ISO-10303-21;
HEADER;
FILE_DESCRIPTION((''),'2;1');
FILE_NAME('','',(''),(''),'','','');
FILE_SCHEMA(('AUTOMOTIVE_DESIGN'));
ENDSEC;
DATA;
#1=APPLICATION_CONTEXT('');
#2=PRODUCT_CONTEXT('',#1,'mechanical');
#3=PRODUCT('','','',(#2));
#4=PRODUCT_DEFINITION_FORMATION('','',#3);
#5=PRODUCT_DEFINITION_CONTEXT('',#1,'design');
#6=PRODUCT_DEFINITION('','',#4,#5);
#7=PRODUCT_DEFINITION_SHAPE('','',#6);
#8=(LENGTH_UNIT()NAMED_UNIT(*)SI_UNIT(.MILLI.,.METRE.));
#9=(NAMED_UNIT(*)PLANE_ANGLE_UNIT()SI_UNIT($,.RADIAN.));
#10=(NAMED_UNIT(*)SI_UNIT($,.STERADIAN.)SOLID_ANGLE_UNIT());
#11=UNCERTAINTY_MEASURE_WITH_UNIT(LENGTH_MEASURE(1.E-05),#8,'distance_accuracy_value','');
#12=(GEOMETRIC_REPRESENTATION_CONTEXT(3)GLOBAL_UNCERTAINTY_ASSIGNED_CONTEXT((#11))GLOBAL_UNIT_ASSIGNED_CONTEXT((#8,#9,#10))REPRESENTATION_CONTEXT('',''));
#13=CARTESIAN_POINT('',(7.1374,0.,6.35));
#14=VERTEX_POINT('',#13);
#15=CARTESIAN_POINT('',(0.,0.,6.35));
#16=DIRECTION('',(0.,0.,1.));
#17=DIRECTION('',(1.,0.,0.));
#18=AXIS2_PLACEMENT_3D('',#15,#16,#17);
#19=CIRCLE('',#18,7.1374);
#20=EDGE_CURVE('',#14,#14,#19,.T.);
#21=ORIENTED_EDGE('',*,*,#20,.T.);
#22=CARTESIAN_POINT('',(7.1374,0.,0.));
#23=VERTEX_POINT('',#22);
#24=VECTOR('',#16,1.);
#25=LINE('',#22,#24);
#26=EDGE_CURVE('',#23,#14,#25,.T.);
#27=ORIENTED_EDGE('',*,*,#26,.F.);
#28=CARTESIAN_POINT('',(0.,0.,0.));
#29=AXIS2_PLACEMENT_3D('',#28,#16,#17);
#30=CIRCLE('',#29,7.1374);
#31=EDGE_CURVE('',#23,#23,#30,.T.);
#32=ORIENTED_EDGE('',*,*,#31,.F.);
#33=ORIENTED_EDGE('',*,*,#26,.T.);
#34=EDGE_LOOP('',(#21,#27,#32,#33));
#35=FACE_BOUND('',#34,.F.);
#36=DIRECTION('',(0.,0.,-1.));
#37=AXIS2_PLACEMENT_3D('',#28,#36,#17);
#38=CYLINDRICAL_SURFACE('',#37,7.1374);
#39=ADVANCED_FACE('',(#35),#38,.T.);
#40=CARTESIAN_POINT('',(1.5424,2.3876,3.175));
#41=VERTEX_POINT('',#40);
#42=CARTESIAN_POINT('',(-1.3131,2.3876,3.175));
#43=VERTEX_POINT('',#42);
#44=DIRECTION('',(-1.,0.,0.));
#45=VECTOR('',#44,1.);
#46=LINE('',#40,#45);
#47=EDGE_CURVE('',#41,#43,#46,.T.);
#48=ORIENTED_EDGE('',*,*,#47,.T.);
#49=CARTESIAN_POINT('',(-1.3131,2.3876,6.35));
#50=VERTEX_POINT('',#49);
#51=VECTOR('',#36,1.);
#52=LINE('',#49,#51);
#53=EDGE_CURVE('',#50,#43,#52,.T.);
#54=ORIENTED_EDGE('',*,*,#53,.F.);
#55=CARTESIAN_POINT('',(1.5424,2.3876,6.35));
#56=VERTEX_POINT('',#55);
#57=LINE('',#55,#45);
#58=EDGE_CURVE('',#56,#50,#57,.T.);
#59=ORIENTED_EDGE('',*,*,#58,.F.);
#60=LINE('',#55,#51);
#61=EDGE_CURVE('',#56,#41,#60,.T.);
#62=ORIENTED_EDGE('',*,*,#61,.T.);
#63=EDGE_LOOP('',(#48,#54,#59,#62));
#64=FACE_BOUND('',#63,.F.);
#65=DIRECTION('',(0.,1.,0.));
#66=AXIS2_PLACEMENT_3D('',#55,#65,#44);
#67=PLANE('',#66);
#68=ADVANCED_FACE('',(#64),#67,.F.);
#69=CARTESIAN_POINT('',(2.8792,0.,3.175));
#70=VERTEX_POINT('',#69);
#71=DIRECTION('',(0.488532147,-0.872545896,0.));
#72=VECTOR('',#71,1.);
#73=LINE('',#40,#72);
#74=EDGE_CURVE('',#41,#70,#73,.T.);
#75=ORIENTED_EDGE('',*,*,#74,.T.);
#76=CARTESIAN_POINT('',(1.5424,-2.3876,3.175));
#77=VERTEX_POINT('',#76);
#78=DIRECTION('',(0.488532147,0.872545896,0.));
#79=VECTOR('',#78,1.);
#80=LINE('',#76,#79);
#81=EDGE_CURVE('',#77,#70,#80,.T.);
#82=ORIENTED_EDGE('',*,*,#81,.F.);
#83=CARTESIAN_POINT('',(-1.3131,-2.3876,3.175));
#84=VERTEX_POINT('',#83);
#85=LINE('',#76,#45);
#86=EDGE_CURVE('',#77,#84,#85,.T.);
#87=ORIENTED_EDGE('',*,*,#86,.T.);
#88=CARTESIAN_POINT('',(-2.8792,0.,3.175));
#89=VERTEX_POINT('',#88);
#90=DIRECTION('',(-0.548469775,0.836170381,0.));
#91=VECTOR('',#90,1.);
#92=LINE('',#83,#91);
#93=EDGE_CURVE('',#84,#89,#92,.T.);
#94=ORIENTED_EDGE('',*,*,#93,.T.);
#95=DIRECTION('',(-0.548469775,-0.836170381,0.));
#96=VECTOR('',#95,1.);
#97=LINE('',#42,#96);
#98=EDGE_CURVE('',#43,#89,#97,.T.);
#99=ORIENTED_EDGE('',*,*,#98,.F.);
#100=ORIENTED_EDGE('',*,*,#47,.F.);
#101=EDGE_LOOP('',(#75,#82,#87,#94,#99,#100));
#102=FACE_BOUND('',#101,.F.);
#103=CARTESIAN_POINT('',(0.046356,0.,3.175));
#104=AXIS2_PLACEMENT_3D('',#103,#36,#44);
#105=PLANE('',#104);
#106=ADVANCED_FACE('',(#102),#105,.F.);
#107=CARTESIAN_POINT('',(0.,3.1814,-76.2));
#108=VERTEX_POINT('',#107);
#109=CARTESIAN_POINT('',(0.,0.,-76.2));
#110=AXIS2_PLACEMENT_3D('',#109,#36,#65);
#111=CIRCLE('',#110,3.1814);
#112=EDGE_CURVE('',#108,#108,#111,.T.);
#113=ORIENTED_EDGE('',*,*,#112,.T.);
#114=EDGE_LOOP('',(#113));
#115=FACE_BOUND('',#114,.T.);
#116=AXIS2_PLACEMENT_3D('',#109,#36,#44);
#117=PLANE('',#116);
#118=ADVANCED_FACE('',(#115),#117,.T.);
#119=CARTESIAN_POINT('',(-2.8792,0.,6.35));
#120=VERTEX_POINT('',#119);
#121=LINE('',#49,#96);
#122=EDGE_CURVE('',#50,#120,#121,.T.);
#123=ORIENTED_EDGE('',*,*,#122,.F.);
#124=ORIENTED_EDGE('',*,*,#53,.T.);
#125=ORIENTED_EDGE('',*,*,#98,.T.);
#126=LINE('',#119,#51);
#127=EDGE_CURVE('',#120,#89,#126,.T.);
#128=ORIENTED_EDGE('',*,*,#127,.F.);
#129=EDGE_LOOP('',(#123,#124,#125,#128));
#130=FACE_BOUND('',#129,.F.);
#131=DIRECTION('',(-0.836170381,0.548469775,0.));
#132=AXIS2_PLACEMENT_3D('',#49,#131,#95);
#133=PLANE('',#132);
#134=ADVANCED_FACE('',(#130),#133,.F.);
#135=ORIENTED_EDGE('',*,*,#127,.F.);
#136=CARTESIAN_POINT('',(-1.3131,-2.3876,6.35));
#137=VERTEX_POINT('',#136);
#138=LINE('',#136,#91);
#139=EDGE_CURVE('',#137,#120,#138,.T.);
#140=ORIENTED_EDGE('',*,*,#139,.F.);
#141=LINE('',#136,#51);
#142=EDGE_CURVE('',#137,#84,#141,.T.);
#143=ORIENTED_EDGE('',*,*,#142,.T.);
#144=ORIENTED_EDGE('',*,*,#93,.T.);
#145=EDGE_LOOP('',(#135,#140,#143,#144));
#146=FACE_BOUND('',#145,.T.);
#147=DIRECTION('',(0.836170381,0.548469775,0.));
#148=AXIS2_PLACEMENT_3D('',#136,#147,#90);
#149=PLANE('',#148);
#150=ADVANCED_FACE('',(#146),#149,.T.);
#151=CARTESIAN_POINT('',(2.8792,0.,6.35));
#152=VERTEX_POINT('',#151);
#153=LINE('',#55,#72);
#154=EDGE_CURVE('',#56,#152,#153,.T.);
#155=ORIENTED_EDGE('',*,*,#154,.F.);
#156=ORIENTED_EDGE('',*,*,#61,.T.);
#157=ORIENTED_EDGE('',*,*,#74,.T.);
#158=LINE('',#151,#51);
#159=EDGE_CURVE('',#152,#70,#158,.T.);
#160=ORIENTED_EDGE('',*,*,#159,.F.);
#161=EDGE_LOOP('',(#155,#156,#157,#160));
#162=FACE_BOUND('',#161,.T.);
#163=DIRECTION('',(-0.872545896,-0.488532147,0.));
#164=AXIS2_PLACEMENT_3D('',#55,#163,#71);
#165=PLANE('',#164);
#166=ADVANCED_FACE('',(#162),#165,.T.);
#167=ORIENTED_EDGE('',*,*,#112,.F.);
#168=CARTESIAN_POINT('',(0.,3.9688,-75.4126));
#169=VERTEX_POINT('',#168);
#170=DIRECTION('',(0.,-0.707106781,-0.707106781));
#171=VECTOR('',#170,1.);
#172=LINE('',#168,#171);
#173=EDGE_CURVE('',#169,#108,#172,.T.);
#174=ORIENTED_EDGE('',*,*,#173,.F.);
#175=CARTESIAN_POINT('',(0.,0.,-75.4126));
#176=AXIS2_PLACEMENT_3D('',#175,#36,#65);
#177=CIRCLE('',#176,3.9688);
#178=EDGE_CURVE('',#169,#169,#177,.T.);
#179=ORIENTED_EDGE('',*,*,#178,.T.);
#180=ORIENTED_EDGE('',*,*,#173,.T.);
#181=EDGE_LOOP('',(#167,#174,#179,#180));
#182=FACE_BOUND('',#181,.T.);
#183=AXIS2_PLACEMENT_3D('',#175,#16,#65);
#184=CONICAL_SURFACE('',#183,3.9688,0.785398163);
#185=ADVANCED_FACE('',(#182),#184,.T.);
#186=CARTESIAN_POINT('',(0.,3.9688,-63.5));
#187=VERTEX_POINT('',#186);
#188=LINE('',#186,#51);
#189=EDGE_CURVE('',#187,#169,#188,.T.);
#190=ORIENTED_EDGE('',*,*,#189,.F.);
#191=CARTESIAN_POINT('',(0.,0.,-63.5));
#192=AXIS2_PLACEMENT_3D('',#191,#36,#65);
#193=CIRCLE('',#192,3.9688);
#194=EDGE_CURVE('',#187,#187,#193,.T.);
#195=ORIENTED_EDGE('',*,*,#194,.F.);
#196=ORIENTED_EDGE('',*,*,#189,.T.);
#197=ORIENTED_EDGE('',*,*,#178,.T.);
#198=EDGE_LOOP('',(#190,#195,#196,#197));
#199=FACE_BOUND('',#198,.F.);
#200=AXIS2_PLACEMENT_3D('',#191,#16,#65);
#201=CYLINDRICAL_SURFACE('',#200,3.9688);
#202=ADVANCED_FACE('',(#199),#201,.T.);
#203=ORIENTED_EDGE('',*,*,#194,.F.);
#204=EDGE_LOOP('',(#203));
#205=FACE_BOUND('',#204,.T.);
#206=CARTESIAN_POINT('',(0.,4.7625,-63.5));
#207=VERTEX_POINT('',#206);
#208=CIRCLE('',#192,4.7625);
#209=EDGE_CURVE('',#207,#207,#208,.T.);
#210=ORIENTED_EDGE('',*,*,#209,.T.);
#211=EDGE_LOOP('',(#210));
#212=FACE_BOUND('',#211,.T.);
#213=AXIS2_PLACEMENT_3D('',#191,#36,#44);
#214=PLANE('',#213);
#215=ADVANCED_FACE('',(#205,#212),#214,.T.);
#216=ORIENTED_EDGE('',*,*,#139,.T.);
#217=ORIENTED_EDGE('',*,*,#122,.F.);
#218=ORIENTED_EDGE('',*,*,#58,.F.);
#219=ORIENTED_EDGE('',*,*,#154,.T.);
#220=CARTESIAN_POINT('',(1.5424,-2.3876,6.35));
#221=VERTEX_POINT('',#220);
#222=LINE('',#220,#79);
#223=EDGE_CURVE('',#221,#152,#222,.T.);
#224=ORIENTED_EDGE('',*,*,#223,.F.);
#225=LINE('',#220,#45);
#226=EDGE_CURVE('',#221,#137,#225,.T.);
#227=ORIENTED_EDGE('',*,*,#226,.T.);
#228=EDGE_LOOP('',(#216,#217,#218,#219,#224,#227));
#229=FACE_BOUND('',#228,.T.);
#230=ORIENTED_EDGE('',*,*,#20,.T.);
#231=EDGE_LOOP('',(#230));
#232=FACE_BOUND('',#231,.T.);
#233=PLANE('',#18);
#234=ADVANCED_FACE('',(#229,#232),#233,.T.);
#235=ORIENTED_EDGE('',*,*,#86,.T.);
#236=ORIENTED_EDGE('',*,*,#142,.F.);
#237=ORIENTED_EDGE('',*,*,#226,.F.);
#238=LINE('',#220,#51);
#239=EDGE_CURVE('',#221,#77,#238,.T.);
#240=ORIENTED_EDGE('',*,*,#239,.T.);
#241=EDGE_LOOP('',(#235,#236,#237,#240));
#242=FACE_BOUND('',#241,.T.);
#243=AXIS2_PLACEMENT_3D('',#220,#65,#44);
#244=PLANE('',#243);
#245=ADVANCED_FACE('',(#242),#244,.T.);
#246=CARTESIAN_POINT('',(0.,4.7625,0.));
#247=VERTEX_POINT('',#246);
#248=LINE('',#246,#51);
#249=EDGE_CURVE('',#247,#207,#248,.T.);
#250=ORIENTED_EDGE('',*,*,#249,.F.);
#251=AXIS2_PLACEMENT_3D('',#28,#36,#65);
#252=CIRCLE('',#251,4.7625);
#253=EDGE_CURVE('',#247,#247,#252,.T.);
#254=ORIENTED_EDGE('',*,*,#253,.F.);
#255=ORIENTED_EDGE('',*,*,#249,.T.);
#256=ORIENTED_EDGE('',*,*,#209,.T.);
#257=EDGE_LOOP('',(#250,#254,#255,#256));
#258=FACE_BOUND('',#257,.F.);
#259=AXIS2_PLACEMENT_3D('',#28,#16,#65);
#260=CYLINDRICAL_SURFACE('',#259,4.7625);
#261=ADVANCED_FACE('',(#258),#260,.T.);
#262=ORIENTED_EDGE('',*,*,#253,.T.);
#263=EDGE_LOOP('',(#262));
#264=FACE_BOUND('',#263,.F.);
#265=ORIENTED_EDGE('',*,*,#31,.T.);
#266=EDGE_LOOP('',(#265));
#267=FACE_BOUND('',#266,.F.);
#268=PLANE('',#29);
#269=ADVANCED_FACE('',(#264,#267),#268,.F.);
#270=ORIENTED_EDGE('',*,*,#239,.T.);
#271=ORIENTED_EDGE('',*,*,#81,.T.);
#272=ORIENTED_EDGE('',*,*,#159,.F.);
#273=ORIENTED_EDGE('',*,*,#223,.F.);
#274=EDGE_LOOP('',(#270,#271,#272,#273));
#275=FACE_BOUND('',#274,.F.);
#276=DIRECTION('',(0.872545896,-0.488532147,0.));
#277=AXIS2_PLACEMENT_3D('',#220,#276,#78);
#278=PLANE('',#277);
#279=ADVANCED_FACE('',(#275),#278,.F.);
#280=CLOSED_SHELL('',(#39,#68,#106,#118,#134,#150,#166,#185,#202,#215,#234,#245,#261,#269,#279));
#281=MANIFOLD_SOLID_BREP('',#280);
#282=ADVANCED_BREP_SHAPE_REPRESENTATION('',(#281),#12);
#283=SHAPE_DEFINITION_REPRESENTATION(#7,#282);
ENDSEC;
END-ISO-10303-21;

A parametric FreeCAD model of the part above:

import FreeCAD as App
import Part
import Sketcher
from FreeCAD import Vector
Q = App.Units.Quantity


def edges_at(feature, points):
    """Names of the edges that pass closest to the given points."""
    edges = feature.Shape.Edges
    near = lambda p: min(range(len(edges)), key=lambda i: edges[i].distToShape(Part.Vertex(*p))[0])
    return sorted({f"Edge{near(p) + 1}" for p in points})

doc = App.newDocument("Part")
body = doc.addObject("PartDesign::Body", "Body")

# Sketch on XY plane
sketch1 = body.newObject("Sketcher::SketchObject", "Sketch")
sketch1.AttachmentSupport = (doc.getObject("XY_Plane"), [""])
sketch1.MapMode = "FlatFace"
sketch1.addGeometry(Part.Circle(Vector(0, 0, 0), Vector(0, 0, 1), 7.1374), False)
sketch1.addConstraint([
    Sketcher.Constraint("Coincident", 0, 3, -1, 1),
    Sketcher.Constraint("Diameter", 0, Q("0.562 in")),
])
pad1 = body.newObject("PartDesign::Pad", "Pad")
pad1.Profile = sketch1
pad1.Length = Q("0.25 in")

# Sketch on XY plane
sketch2 = body.newObject("Sketcher::SketchObject", "Sketch001")
sketch2.AttachmentSupport = (doc.getObject("XY_Plane"), [""])
sketch2.MapMode = "FlatFace"
sketch2.addGeometry(Part.Circle(Vector(0, 0, 0), Vector(0, 0, 1), 4.7625), False)
sketch2.addConstraint([
    Sketcher.Constraint("Coincident", 0, 3, -1, 1),
    Sketcher.Constraint("Diameter", 0, Q("0.375 in")),
])
pad2 = body.newObject("PartDesign::Pad", "Pad001")
pad2.Profile = sketch2
pad2.Length = Q("2.5 in")
pad2.Reversed = True

# Sketch on XY plane
sketch3 = body.newObject("Sketcher::SketchObject", "Sketch002")
sketch3.AttachmentSupport = (doc.getObject("XY_Plane"), [""])
sketch3.MapMode = "FlatFace"
sketch3.AttachmentOffset = App.Placement(Vector(0, 0, -2.5 * 25.4), App.Rotation())
sketch3.addGeometry(Part.Circle(Vector(0, 0, 0), Vector(0, 0, 1), 3.9688), False)
sketch3.addConstraint([
    Sketcher.Constraint("Coincident", 0, 3, -1, 1),
    Sketcher.Constraint("Diameter", 0, Q("0.3125 in")),
])
pad3 = body.newObject("PartDesign::Pad", "Pad002")
pad3.Profile = sketch3
pad3.Length = Q("0.5 in")
pad3.Reversed = True

# Sketch on XY plane
sketch4 = body.newObject("Sketcher::SketchObject", "Sketch003")
sketch4.AttachmentSupport = (doc.getObject("XY_Plane"), [""])
sketch4.MapMode = "FlatFace"
sketch4.AttachmentOffset = App.Placement(Vector(0, 0, 0.25 * 25.4), App.Rotation())
sketch4.addGeometry([
    Part.LineSegment(Vector(-2.8792, 0, 0), Vector(-1.3131, -2.3876, 0)),  # 0
    Part.LineSegment(Vector(-1.3131, -2.3876, 0), Vector(1.5424, -2.3876, 0)),  # 1
    Part.LineSegment(Vector(1.5424, -2.3876, 0), Vector(2.8792, 0, 0)),  # 2
    Part.LineSegment(Vector(2.8792, 0, 0), Vector(1.5424, 2.3876, 0)),  # 3
    Part.LineSegment(Vector(1.5424, 2.3876, 0), Vector(-1.3131, 2.3876, 0)),  # 4
    Part.LineSegment(Vector(-1.3131, 2.3876, 0), Vector(-2.8792, 0, 0)),  # 5
], False)
sketch4.addConstraint([
    Sketcher.Constraint("Coincident", 0, 2, 1, 1),
    Sketcher.Constraint("Coincident", 1, 2, 2, 1),
    Sketcher.Constraint("Coincident", 2, 2, 3, 1),
    Sketcher.Constraint("Coincident", 3, 2, 4, 1),
    Sketcher.Constraint("Coincident", 4, 2, 5, 1),
    Sketcher.Constraint("Coincident", 5, 2, 0, 1),
    Sketcher.Constraint("Horizontal", 1),
    Sketcher.Constraint("Horizontal", 4),
    Sketcher.Constraint("Symmetric", 2, 2, 5, 2, -1, 1),
    Sketcher.Constraint("Symmetric", 1, 2, 3, 2, -1),
    Sketcher.Constraint("PointOnObject", 2, 2, -1),
    Sketcher.Constraint("Vertical", 0, 2, 4, 2),
    Sketcher.Constraint("DistanceY", 0, 2, -1, 1, Q("0.094 in")),
    Sketcher.Constraint("DistanceX", 1, 1, 1, 2, 2.8555),
    Sketcher.Constraint("DistanceX", 0, 2, -1, 1, Q("0.0517 in")),
    Sketcher.Constraint("DistanceX", 5, 2, 2, 2, Q("0.2267 in")),
])
pocket1 = body.newObject("PartDesign::Pocket", "Pocket")
pocket1.Profile = sketch4
pocket1.Length = Q("0.125 in")
doc.recompute()

chamfer = body.newObject("PartDesign::Chamfer", "Chamfer")
chamfer.Base = (pocket1, edges_at(pocket1, [(0, -3.969, -76.2)]))
chamfer.Size = Q("0.031 in")

doc.recompute()
